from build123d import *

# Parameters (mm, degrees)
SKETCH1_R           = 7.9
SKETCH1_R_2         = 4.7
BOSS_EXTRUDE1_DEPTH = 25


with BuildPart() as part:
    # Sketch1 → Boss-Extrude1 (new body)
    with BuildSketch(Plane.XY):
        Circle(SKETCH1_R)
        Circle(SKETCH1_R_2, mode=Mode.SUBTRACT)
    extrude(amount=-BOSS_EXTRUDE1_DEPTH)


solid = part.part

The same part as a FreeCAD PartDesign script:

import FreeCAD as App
import Part
import Sketcher

V = App.Vector
Q = App.Units.Quantity

doc = App.newDocument("Part")
params = doc.addObject("Spreadsheet::Sheet", "Params")
for row, (alias, value) in enumerate([
    ("sketch1_diameter", "15.8 mm"),
    ("sketch1_diameter2", "9.4 mm"),
    ("pad1_length", "25 mm"),
], start=1):
    params.set(f"A{row}", alias)
    params.set(f"B{row}", "=" + value)
    params.setAlias(f"B{row}", alias)

body = doc.addObject("PartDesign::Body", "Body")

# Sketch on XY plane
sketch1 = doc.addObject("Sketcher::SketchObject", "Sketch")
body.addObject(sketch1)
sketch1.AttachmentSupport = (doc.XY_Plane, [""])
sketch1.MapMode = "FlatFace"
sketch1.addGeometry(Part.Circle(V(0, 0, 0), V(0, 0, 1), 7.9), False)
sketch1.addGeometry(Part.Circle(V(0, 0, 0), V(0, 0, 1), 4.7), False)
sketch1.addConstraint(Sketcher.Constraint("Coincident", 0, 3, -1, 1))
sketch1.addConstraint(Sketcher.Constraint("Coincident", 1, 3, -1, 1))
sketch1.addConstraint(Sketcher.Constraint("Diameter", 0, Q("15.8 mm")))
sketch1.addConstraint(Sketcher.Constraint("Diameter", 1, Q("9.4 mm")))
sketch1.setExpression("Constraints[2]", "Params.sketch1_diameter")
sketch1.setExpression("Constraints[3]", "Params.sketch1_diameter2")
pad1 = doc.addObject("PartDesign::Pad", "Pad")
body.addObject(pad1)
pad1.Profile = sketch1
pad1.setExpression("Length", "Params.pad1_length")
pad1.Reversed = True

doc.recompute()
